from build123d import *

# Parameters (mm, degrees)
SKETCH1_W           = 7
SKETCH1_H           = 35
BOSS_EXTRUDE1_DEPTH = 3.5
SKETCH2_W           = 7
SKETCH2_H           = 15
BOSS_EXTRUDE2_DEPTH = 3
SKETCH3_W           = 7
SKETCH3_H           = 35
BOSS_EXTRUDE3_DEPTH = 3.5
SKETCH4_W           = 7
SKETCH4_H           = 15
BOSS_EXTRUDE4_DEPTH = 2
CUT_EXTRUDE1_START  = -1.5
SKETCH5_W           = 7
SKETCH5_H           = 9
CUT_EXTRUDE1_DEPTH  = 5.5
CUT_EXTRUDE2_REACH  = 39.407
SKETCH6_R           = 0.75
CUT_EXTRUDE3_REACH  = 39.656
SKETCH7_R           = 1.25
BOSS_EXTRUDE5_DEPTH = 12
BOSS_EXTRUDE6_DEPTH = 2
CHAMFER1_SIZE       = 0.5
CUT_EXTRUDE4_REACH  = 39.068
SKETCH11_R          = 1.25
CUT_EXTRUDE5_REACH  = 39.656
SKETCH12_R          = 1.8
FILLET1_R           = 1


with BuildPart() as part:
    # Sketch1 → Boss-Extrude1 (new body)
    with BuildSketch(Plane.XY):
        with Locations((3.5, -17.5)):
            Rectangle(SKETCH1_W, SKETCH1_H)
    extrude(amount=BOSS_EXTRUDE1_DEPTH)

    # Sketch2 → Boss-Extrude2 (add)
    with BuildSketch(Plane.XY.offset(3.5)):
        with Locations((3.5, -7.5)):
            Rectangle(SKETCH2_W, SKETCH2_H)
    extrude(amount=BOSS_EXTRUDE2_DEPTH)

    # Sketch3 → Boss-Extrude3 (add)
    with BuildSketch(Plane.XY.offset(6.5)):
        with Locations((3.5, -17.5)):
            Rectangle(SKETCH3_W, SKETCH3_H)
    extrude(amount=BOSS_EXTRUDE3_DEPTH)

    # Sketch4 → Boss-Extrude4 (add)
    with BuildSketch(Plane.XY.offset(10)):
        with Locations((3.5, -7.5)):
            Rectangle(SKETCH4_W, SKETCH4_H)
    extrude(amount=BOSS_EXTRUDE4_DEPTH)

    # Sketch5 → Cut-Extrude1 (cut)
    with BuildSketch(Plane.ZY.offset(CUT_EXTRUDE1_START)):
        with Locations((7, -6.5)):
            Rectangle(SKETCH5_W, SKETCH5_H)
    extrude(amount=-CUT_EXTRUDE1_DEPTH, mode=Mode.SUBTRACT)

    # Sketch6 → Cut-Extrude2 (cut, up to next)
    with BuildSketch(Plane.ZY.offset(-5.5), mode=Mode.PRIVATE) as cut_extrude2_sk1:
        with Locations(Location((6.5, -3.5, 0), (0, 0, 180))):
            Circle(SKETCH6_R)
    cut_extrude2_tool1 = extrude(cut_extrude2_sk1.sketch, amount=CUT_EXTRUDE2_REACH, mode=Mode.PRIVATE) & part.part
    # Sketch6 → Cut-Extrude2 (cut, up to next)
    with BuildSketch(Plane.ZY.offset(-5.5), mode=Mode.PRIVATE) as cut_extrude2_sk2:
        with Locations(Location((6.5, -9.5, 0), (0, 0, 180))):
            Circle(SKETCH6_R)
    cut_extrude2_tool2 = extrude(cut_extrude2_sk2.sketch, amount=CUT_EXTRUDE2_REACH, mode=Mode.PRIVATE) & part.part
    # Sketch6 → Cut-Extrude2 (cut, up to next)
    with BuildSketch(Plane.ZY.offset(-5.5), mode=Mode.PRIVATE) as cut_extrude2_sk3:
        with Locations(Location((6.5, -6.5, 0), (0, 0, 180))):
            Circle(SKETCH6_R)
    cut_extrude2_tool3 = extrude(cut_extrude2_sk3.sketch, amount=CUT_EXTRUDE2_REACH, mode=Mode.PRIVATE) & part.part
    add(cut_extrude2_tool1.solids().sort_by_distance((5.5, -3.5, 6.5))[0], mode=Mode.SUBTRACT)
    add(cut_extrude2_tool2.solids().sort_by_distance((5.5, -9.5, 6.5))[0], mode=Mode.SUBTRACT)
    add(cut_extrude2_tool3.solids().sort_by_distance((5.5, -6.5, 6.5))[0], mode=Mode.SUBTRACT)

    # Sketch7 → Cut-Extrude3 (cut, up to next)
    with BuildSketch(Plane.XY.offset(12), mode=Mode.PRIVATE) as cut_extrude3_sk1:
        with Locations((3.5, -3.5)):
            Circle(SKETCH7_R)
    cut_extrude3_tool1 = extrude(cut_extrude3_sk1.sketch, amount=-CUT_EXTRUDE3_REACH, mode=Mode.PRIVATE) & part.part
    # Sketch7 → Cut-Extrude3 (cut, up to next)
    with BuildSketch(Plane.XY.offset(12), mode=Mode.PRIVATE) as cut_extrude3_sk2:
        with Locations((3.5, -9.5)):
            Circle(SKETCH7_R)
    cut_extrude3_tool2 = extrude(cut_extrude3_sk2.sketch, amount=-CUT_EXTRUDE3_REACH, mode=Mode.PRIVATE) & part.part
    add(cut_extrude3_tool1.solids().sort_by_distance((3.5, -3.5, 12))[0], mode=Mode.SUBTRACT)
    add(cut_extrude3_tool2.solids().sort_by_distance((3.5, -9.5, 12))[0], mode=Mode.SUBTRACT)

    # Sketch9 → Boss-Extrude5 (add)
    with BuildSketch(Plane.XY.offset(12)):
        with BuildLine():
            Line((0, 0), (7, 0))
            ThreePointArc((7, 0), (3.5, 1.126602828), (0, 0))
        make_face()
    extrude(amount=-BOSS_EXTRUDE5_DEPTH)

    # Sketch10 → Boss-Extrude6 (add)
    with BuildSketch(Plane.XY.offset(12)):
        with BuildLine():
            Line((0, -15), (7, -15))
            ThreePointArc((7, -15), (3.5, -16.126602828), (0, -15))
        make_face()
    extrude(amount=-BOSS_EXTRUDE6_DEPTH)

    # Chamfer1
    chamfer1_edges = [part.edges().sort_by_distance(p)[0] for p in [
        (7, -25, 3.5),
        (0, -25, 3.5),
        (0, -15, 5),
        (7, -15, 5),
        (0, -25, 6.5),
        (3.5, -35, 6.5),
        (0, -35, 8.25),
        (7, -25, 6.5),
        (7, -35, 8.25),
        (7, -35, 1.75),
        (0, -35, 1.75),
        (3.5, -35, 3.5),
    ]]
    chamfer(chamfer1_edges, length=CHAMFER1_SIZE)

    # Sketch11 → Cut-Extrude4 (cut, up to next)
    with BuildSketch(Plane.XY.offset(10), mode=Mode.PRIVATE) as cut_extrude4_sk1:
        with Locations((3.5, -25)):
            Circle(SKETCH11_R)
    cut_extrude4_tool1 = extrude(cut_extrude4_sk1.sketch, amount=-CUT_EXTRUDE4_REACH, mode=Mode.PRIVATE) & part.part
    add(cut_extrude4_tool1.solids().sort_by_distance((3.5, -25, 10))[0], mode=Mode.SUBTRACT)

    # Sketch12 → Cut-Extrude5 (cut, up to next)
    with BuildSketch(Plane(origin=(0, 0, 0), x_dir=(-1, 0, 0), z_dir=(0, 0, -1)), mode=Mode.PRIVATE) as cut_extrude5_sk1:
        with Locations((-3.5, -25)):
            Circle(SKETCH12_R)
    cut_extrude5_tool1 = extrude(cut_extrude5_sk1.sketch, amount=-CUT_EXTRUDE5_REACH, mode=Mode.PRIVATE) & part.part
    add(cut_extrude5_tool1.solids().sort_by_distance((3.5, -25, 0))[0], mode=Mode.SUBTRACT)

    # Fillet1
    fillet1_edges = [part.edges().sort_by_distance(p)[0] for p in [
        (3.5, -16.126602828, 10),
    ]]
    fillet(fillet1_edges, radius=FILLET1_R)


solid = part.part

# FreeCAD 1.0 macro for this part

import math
import FreeCAD as App
import Part
import Sketcher

V = App.Vector


def edges_at(feature, points):
    """Names of the edges that pass closest to the given points."""
    edges = feature.Shape.Edges
    near = lambda p: min(range(len(edges)), key=lambda i: edges[i].distToShape(Part.Vertex(*p))[0])
    return sorted({f"Edge{near(p) + 1}" for p in points})


def add_polygon(sketch, points):
    """Adds a closed chain of lines whose ends are joined by coincident constraints."""
    first, n = sketch.GeometryCount, len(points)
    for a, b in zip(points, points[1:] + points[:1]):
        sketch.addGeometry(Part.LineSegment(App.Vector(*a, 0), App.Vector(*b, 0)), False)
    for i in range(n):
        sketch.addConstraint(Sketcher.Constraint("Coincident", first + i, 2, first + (i + 1) % n, 1))

doc = App.newDocument("Part")
body = doc.addObject("PartDesign::Body", "Body")

# Sketch on XY plane
sketch1 = doc.addObject("Sketcher::SketchObject", "Sketch")
body.addObject(sketch1)
sketch1.AttachmentSupport = (doc.XY_Plane, [""])
sketch1.MapMode = "FlatFace"
add_polygon(sketch1, [(0, 0), (0, -35), (7, -35), (7, 0)])  # lines 0-3
sketch1.addConstraint([
    Sketcher.Constraint("Vertical", 0),
    Sketcher.Constraint("Horizontal", 1),
    Sketcher.Constraint("Vertical", 2),
    Sketcher.Constraint("Horizontal", 3),
    Sketcher.Constraint("Coincident", 3, 2, -1, 1),
    Sketcher.Constraint("DistanceX", 1, 1, 1, 2, 7.0),
    Sketcher.Constraint("DistanceY", 0, 2, 0, 1, 35.0),
])
pad1 = doc.addObject("PartDesign::Pad", "Pad")
body.addObject(pad1)
pad1.Profile = sketch1
pad1.Length = 3.5

# Sketch on XY plane
sketch2 = doc.addObject("Sketcher::SketchObject", "Sketch001")
body.addObject(sketch2)
sketch2.AttachmentSupport = (doc.XY_Plane, [""])
sketch2.MapMode = "FlatFace"
sketch2.AttachmentOffset = App.Placement(V(0, 0, 3.5), App.Rotation())
add_polygon(sketch2, [(0, 0), (0, -15), (7, -15), (7, 0)])  # lines 0-3
sketch2.addConstraint([
    Sketcher.Constraint("Vertical", 0),
    Sketcher.Constraint("Horizontal", 1),
    Sketcher.Constraint("Vertical", 2),
    Sketcher.Constraint("Horizontal", 3),
    Sketcher.Constraint("Coincident", 3, 2, -1, 1),
    Sketcher.Constraint("DistanceX", 1, 1, 1, 2, 7.0),
    Sketcher.Constraint("DistanceY", 0, 2, 0, 1, 15.0),
])
pad2 = doc.addObject("PartDesign::Pad", "Pad001")
body.addObject(pad2)
pad2.Profile = sketch2
pad2.Length = 3

# Sketch on XY plane
sketch3 = doc.addObject("Sketcher::SketchObject", "Sketch002")
body.addObject(sketch3)
sketch3.AttachmentSupport = (doc.XY_Plane, [""])
sketch3.MapMode = "FlatFace"
sketch3.AttachmentOffset = App.Placement(V(0, 0, 6.5), App.Rotation())
add_polygon(sketch3, [(0, 0), (0, -35), (7, -35), (7, 0)])  # lines 0-3
sketch3.addConstraint([
    Sketcher.Constraint("Vertical", 0),
    Sketcher.Constraint("Horizontal", 1),
    Sketcher.Constraint("Vertical", 2),
    Sketcher.Constraint("Horizontal", 3),
    Sketcher.Constraint("Coincident", 3, 2, -1, 1),
    Sketcher.Constraint("DistanceX", 1, 1, 1, 2, 7.0),
    Sketcher.Constraint("DistanceY", 0, 2, 0, 1, 35.0),
])
pad3 = doc.addObject("PartDesign::Pad", "Pad002")
body.addObject(pad3)
pad3.Profile = sketch3
pad3.Length = 3.5

# Sketch on XY plane
sketch4 = doc.addObject("Sketcher::SketchObject", "Sketch003")
body.addObject(sketch4)
sketch4.AttachmentSupport = (doc.XY_Plane, [""])
sketch4.MapMode = "FlatFace"
sketch4.AttachmentOffset = App.Placement(V(0, 0, 10), App.Rotation())
add_polygon(sketch4, [(0, 0), (0, -15), (7, -15), (7, 0)])  # lines 0-3
sketch4.addConstraint([
    Sketcher.Constraint("Vertical", 0),
    Sketcher.Constraint("Horizontal", 1),
    Sketcher.Constraint("Vertical", 2),
    Sketcher.Constraint("Horizontal", 3),
    Sketcher.Constraint("Coincident", 3, 2, -1, 1),
    Sketcher.Constraint("DistanceX", 1, 1, 1, 2, 7.0),
    Sketcher.Constraint("DistanceY", 0, 2, 0, 1, 15.0),
])
pad4 = doc.addObject("PartDesign::Pad", "Pad003")
body.addObject(pad4)
pad4.Profile = sketch4
pad4.Length = 2

# Sketch on YZ plane
sketch5 = doc.addObject("Sketcher::SketchObject", "Sketch004")
body.addObject(sketch5)
sketch5.AttachmentSupport = (doc.YZ_Plane, [""])
sketch5.MapMode = "FlatFace"
sketch5.AttachmentOffset = App.Placement(V(0, 0, 1.5), App.Rotation())
add_polygon(sketch5, [(-2, 4), (-11, 4), (-11, 10), (-2, 10)])  # lines 0-3
sketch5.addConstraint([
    Sketcher.Constraint("Horizontal", 0),
    Sketcher.Constraint("Vertical", 1),
    Sketcher.Constraint("Horizontal", 2),
    Sketcher.Constraint("Vertical", 3),
    Sketcher.Constraint("DistanceX", 0, 2, 0, 1, 9.0),
    Sketcher.Constraint("DistanceY", 1, 1, 1, 2, 7.0),
    Sketcher.Constraint("DistanceX", 0, 2, -1, 1, 11.0),
    Sketcher.Constraint("DistanceY", -1, 1, 0, 2, 3.5),
])
pocket1 = doc.addObject("PartDesign::Pocket", "Pocket")
body.addObject(pocket1)
pocket1.Profile = sketch5
pocket1.Length = 5.5
pocket1.Reversed = True

# Sketch on YZ plane
sketch6 = doc.addObject("Sketcher::SketchObject", "Sketch005")
body.addObject(sketch6)
sketch6.AttachmentSupport = (doc.YZ_Plane, [""])
sketch6.MapMode = "FlatFace"
sketch6.AttachmentOffset = App.Placement(V(0, 0, 5.5), App.Rotation())
sketch6.addGeometry(Part.Circle(V(-3.5, 6.5, 0), V(0, 0, 1), 0.8), False)
sketch6.addConstraint([
    Sketcher.Constraint("Diameter", 0, 1.5),
    Sketcher.Constraint("DistanceX", 0, 3, -1, 1, 3.5),
    Sketcher.Constraint("DistanceY", -1, 1, 0, 3, 6.5),
])
pocket2 = doc.addObject("PartDesign::Pocket", "Pocket001")
body.addObject(pocket2)
pocket2.Profile = sketch6
pocket2.Length = 5.5

# Sketch on YZ plane
sketch7 = doc.addObject("Sketcher::SketchObject", "Sketch006")
body.addObject(sketch7)
sketch7.AttachmentSupport = (doc.YZ_Plane, [""])
sketch7.MapMode = "FlatFace"
sketch7.AttachmentOffset = App.Placement(V(0, 0, 5.5), App.Rotation())
sketch7.addGeometry(Part.Circle(V(-9.5, 6.5, 0), V(0, 0, 1), 0.8), False)
sketch7.addConstraint([
    Sketcher.Constraint("Diameter", 0, 1.5),
    Sketcher.Constraint("DistanceX", 0, 3, -1, 1, 9.5),
    Sketcher.Constraint("DistanceY", -1, 1, 0, 3, 6.5),
])
pocket3 = doc.addObject("PartDesign::Pocket", "Pocket002")
body.addObject(pocket3)
pocket3.Profile = sketch7
pocket3.Length = 5.5

# Sketch on YZ plane
sketch8 = doc.addObject("Sketcher::SketchObject", "Sketch007")
body.addObject(sketch8)
sketch8.AttachmentSupport = (doc.YZ_Plane, [""])
sketch8.MapMode = "FlatFace"
sketch8.AttachmentOffset = App.Placement(V(0, 0, 5.5), App.Rotation())
sketch8.addGeometry(Part.Circle(V(-6.5, 6.5, 0), V(0, 0, 1), 0.8), False)
sketch8.addConstraint([
    Sketcher.Constraint("Diameter", 0, 1.5),
    Sketcher.Constraint("DistanceX", 0, 3, -1, 1, 6.5),
    Sketcher.Constraint("DistanceY", -1, 1, 0, 3, 6.5),
])
pocket4 = doc.addObject("PartDesign::Pocket", "Pocket003")
body.addObject(pocket4)
pocket4.Profile = sketch8
pocket4.Length = 5.5

# Sketch on XY plane
sketch9 = doc.addObject("Sketcher::SketchObject", "Sketch008")
body.addObject(sketch9)
sketch9.AttachmentSupport = (doc.XY_Plane, [""])
sketch9.MapMode = "FlatFace"
sketch9.AttachmentOffset = App.Placement(V(0, 0, 12), App.Rotation())
sketch9.addGeometry(Part.Circle(V(3.5, -3.5, 0), V(0, 0, 1), 1.2), False)
sketch9.addConstraint([
    Sketcher.Constraint("Diameter", 0, 2.5),
    Sketcher.Constraint("DistanceX", -1, 1, 0, 3, 3.5),
    Sketcher.Constraint("DistanceY", 0, 3, -1, 1, 3.5),
])
pocket5 = doc.addObject("PartDesign::Pocket", "Pocket004")
body.addObject(pocket5)
pocket5.Profile = sketch9
pocket5.Type = "UpToFirst"

# Sketch on XY plane
sketch10 = doc.addObject("Sketcher::SketchObject", "Sketch009")
body.addObject(sketch10)
sketch10.AttachmentSupport = (doc.XY_Plane, [""])
sketch10.MapMode = "FlatFace"
sketch10.AttachmentOffset = App.Placement(V(0, 0, 12), App.Rotation())
sketch10.addGeometry(Part.Circle(V(3.5, -9.5, 0), V(0, 0, 1), 1.2), False)
sketch10.addConstraint([
    Sketcher.Constraint("Diameter", 0, 2.5),
    Sketcher.Constraint("DistanceX", -1, 1, 0, 3, 3.5),
    Sketcher.Constraint("DistanceY", 0, 3, -1, 1, 9.5),
])
pocket6 = doc.addObject("PartDesign::Pocket", "Pocket005")
body.addObject(pocket6)
pocket6.Profile = sketch10
pocket6.Type = "UpToFirst"

# Sketch on XY plane
sketch11 = doc.addObject("Sketcher::SketchObject", "Sketch010")
body.addObject(sketch11)
sketch11.AttachmentSupport = (doc.XY_Plane, [""])
sketch11.MapMode = "FlatFace"
sketch11.AttachmentOffset = App.Placement(V(0, 0, 12), App.Rotation())
sketch11.addGeometry([
    Part.LineSegment(V(0, 0, 0), V(7, 0, 0)),
    Part.ArcOfCircle(Part.Circle(V(4, -5, 0), V(0, 0, 1), 6), math.radians(54), math.radians(126)),
], False)
sketch11.addConstraint([
    Sketcher.Constraint("Coincident", 0, 1, 1, 2),
    Sketcher.Constraint("Coincident", 1, 1, 0, 2),
    Sketcher.Constraint("Horizontal", 0),
    Sketcher.Constraint("Coincident", 0, 1, -1, 1),
    Sketcher.Constraint("Radius", 1, 6.0),
    Sketcher.Constraint("DistanceX", 0, 1, 0, 2, 7.0),
])
pad5 = doc.addObject("PartDesign::Pad", "Pad004")
body.addObject(pad5)
pad5.Profile = sketch11
pad5.Length = 12
pad5.Reversed = True

# Sketch on XY plane
sketch12 = doc.addObject("Sketcher::SketchObject", "Sketch011")
body.addObject(sketch12)
sketch12.AttachmentSupport = (doc.XY_Plane, [""])
sketch12.MapMode = "FlatFace"
sketch12.AttachmentOffset = App.Placement(V(0, 0, 12), App.Rotation())
sketch12.addGeometry([
    Part.LineSegment(V(7, -15, 0), V(0, -15, 0)),
    Part.ArcOfCircle(Part.Circle(V(4, -10, 0), V(0, 0, 1), 6), math.radians(-126), math.radians(-54)),
], False)
sketch12.addConstraint([
    Sketcher.Constraint("Coincident", 0, 1, 1, 2),
    Sketcher.Constraint("Coincident", 1, 1, 0, 2),
    Sketcher.Constraint("Horizontal", 0),
    Sketcher.Constraint("PointOnObject", 1, 1, -2),
    Sketcher.Constraint("Radius", 1, 6.0),
    Sketcher.Constraint("DistanceX", 0, 2, 0, 1, 7.0),
    Sketcher.Constraint("DistanceY", 0, 1, -1, 1, 15.0),
])
pad6 = doc.addObject("PartDesign::Pad", "Pad005")
body.addObject(pad6)
pad6.Profile = sketch12
pad6.Length = 2
pad6.Reversed = True
doc.recompute()

chamfer = doc.addObject("PartDesign::Chamfer", "Chamfer")
body.addObject(chamfer)
chamfer.Base = (pad6, edges_at(pad6, [
    (7, -25, 3.5),
    (0, -25, 3.5),
    (0, -15, 5),
    (7, -15, 5),
    (0, -25, 6.5),
    (3.5, -35, 6.5),
    (0, -35, 8.25),
    (7, -25, 6.5),
    (7, -35, 8.25),
    (7, -35, 1.75),
    (0, -35, 1.75),
    (3.5, -35, 3.5),
]))
chamfer.Size = 0.5

# Sketch on XY plane
sketch13 = doc.addObject("Sketcher::SketchObject", "Sketch012")
body.addObject(sketch13)
sketch13.AttachmentSupport = (doc.XY_Plane, [""])
sketch13.MapMode = "FlatFace"
sketch13.AttachmentOffset = App.Placement(V(0, 0, 10), App.Rotation())
sketch13.addGeometry(Part.Circle(V(3.5, -25, 0), V(0, 0, 1), 1.2), False)
sketch13.addConstraint([
    Sketcher.Constraint("Diameter", 0, 2.5),
    Sketcher.Constraint("DistanceY", 0, 3, -1, 1, 25.0),
    Sketcher.Constraint("DistanceX", -1, 1, 0, 3, 3.5),
])
pocket7 = doc.addObject("PartDesign::Pocket", "Pocket006")
body.addObject(pocket7)
pocket7.Profile = sketch13
pocket7.Type = "UpToFirst"

# Sketch on XY plane
sketch14 = doc.addObject("Sketcher::SketchObject", "Sketch013")
body.addObject(sketch14)
sketch14.AttachmentSupport = (doc.XY_Plane, [""])
sketch14.MapMode = "FlatFace"
sketch14.addGeometry(Part.Circle(V(3.5, -25, 0), V(0, 0, 1), 1.8), False)
sketch14.addConstraint([
    Sketcher.Constraint("Diameter", 0, 3.6),
    Sketcher.Constraint("DistanceY", 0, 3, -1, 1, 25.0),
    Sketcher.Constraint("DistanceX", -1, 1, 0, 3, 3.5),
])
pocket8 = doc.addObject("PartDesign::Pocket", "Pocket007")
body.addObject(pocket8)
pocket8.Profile = sketch14
pocket8.Type = "UpToFirst"
pocket8.Reversed = True
doc.recompute()

fillet = doc.addObject("PartDesign::Fillet", "Fillet")
body.addObject(fillet)
fillet.Base = (pocket8, edges_at(pocket8, [(3.5, -16.127, 10)]))
fillet.Radius = 1

doc.recompute()
